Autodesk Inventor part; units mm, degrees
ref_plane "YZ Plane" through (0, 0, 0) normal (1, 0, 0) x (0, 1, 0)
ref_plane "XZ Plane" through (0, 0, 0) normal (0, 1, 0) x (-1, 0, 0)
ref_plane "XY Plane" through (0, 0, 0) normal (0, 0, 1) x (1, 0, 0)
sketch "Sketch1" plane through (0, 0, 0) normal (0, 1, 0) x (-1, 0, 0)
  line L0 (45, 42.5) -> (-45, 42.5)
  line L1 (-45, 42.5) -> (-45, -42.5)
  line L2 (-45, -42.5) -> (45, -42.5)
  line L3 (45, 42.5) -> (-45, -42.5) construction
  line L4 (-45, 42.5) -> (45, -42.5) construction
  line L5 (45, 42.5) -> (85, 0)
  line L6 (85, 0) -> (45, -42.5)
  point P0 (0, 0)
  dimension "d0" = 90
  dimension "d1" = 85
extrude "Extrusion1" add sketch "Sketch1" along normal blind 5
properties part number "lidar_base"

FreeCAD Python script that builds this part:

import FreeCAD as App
import Part
import Sketcher

V = App.Vector


def add_polygon(sketch, points):
    """Adds a closed chain of lines whose ends are joined by coincident constraints."""
    first, n = sketch.GeometryCount, len(points)
    for a, b in zip(points, points[1:] + points[:1]):
        sketch.addGeometry(Part.LineSegment(App.Vector(*a, 0), App.Vector(*b, 0)), False)
    for i in range(n):
        sketch.addConstraint(Sketcher.Constraint("Coincident", first + i, 2, first + (i + 1) % n, 1))

doc = App.newDocument("Part")
body = doc.addObject("PartDesign::Body", "Body")

# Sketch on XZ plane
sketch1 = doc.addObject("Sketcher::SketchObject", "Sketch")
body.addObject(sketch1)
sketch1.AttachmentSupport = (doc.XZ_Plane, [""])
sketch1.MapMode = "FlatFace"
add_polygon(sketch1, [(-85, 0), (-45, 42), (45, 42), (45, -42), (-45, -42)])  # lines 0-4
sketch1.addConstraint([
    Sketcher.Constraint("Horizontal", 1),
    Sketcher.Constraint("Vertical", 2),
    Sketcher.Constraint("Horizontal", 3),
    Sketcher.Constraint("Symmetric", 0, 2, 2, 2, -1, 1),
    Sketcher.Constraint("PointOnObject", 4, 2, -1),
    Sketcher.Constraint("Vertical", 0, 2, 3, 2),
    Sketcher.Constraint("DistanceX", 1, 1, 1, 2, 90.0),
    Sketcher.Constraint("DistanceY", 2, 2, 2, 1, 85.0),
    Sketcher.Constraint("DistanceX", 4, 2, -1, 1, 85.0),
])
pad1 = doc.addObject("PartDesign::Pad", "Pad")
body.addObject(pad1)
pad1.Profile = sketch1
pad1.Length = 5
pad1.Reversed = True

doc.recompute()
